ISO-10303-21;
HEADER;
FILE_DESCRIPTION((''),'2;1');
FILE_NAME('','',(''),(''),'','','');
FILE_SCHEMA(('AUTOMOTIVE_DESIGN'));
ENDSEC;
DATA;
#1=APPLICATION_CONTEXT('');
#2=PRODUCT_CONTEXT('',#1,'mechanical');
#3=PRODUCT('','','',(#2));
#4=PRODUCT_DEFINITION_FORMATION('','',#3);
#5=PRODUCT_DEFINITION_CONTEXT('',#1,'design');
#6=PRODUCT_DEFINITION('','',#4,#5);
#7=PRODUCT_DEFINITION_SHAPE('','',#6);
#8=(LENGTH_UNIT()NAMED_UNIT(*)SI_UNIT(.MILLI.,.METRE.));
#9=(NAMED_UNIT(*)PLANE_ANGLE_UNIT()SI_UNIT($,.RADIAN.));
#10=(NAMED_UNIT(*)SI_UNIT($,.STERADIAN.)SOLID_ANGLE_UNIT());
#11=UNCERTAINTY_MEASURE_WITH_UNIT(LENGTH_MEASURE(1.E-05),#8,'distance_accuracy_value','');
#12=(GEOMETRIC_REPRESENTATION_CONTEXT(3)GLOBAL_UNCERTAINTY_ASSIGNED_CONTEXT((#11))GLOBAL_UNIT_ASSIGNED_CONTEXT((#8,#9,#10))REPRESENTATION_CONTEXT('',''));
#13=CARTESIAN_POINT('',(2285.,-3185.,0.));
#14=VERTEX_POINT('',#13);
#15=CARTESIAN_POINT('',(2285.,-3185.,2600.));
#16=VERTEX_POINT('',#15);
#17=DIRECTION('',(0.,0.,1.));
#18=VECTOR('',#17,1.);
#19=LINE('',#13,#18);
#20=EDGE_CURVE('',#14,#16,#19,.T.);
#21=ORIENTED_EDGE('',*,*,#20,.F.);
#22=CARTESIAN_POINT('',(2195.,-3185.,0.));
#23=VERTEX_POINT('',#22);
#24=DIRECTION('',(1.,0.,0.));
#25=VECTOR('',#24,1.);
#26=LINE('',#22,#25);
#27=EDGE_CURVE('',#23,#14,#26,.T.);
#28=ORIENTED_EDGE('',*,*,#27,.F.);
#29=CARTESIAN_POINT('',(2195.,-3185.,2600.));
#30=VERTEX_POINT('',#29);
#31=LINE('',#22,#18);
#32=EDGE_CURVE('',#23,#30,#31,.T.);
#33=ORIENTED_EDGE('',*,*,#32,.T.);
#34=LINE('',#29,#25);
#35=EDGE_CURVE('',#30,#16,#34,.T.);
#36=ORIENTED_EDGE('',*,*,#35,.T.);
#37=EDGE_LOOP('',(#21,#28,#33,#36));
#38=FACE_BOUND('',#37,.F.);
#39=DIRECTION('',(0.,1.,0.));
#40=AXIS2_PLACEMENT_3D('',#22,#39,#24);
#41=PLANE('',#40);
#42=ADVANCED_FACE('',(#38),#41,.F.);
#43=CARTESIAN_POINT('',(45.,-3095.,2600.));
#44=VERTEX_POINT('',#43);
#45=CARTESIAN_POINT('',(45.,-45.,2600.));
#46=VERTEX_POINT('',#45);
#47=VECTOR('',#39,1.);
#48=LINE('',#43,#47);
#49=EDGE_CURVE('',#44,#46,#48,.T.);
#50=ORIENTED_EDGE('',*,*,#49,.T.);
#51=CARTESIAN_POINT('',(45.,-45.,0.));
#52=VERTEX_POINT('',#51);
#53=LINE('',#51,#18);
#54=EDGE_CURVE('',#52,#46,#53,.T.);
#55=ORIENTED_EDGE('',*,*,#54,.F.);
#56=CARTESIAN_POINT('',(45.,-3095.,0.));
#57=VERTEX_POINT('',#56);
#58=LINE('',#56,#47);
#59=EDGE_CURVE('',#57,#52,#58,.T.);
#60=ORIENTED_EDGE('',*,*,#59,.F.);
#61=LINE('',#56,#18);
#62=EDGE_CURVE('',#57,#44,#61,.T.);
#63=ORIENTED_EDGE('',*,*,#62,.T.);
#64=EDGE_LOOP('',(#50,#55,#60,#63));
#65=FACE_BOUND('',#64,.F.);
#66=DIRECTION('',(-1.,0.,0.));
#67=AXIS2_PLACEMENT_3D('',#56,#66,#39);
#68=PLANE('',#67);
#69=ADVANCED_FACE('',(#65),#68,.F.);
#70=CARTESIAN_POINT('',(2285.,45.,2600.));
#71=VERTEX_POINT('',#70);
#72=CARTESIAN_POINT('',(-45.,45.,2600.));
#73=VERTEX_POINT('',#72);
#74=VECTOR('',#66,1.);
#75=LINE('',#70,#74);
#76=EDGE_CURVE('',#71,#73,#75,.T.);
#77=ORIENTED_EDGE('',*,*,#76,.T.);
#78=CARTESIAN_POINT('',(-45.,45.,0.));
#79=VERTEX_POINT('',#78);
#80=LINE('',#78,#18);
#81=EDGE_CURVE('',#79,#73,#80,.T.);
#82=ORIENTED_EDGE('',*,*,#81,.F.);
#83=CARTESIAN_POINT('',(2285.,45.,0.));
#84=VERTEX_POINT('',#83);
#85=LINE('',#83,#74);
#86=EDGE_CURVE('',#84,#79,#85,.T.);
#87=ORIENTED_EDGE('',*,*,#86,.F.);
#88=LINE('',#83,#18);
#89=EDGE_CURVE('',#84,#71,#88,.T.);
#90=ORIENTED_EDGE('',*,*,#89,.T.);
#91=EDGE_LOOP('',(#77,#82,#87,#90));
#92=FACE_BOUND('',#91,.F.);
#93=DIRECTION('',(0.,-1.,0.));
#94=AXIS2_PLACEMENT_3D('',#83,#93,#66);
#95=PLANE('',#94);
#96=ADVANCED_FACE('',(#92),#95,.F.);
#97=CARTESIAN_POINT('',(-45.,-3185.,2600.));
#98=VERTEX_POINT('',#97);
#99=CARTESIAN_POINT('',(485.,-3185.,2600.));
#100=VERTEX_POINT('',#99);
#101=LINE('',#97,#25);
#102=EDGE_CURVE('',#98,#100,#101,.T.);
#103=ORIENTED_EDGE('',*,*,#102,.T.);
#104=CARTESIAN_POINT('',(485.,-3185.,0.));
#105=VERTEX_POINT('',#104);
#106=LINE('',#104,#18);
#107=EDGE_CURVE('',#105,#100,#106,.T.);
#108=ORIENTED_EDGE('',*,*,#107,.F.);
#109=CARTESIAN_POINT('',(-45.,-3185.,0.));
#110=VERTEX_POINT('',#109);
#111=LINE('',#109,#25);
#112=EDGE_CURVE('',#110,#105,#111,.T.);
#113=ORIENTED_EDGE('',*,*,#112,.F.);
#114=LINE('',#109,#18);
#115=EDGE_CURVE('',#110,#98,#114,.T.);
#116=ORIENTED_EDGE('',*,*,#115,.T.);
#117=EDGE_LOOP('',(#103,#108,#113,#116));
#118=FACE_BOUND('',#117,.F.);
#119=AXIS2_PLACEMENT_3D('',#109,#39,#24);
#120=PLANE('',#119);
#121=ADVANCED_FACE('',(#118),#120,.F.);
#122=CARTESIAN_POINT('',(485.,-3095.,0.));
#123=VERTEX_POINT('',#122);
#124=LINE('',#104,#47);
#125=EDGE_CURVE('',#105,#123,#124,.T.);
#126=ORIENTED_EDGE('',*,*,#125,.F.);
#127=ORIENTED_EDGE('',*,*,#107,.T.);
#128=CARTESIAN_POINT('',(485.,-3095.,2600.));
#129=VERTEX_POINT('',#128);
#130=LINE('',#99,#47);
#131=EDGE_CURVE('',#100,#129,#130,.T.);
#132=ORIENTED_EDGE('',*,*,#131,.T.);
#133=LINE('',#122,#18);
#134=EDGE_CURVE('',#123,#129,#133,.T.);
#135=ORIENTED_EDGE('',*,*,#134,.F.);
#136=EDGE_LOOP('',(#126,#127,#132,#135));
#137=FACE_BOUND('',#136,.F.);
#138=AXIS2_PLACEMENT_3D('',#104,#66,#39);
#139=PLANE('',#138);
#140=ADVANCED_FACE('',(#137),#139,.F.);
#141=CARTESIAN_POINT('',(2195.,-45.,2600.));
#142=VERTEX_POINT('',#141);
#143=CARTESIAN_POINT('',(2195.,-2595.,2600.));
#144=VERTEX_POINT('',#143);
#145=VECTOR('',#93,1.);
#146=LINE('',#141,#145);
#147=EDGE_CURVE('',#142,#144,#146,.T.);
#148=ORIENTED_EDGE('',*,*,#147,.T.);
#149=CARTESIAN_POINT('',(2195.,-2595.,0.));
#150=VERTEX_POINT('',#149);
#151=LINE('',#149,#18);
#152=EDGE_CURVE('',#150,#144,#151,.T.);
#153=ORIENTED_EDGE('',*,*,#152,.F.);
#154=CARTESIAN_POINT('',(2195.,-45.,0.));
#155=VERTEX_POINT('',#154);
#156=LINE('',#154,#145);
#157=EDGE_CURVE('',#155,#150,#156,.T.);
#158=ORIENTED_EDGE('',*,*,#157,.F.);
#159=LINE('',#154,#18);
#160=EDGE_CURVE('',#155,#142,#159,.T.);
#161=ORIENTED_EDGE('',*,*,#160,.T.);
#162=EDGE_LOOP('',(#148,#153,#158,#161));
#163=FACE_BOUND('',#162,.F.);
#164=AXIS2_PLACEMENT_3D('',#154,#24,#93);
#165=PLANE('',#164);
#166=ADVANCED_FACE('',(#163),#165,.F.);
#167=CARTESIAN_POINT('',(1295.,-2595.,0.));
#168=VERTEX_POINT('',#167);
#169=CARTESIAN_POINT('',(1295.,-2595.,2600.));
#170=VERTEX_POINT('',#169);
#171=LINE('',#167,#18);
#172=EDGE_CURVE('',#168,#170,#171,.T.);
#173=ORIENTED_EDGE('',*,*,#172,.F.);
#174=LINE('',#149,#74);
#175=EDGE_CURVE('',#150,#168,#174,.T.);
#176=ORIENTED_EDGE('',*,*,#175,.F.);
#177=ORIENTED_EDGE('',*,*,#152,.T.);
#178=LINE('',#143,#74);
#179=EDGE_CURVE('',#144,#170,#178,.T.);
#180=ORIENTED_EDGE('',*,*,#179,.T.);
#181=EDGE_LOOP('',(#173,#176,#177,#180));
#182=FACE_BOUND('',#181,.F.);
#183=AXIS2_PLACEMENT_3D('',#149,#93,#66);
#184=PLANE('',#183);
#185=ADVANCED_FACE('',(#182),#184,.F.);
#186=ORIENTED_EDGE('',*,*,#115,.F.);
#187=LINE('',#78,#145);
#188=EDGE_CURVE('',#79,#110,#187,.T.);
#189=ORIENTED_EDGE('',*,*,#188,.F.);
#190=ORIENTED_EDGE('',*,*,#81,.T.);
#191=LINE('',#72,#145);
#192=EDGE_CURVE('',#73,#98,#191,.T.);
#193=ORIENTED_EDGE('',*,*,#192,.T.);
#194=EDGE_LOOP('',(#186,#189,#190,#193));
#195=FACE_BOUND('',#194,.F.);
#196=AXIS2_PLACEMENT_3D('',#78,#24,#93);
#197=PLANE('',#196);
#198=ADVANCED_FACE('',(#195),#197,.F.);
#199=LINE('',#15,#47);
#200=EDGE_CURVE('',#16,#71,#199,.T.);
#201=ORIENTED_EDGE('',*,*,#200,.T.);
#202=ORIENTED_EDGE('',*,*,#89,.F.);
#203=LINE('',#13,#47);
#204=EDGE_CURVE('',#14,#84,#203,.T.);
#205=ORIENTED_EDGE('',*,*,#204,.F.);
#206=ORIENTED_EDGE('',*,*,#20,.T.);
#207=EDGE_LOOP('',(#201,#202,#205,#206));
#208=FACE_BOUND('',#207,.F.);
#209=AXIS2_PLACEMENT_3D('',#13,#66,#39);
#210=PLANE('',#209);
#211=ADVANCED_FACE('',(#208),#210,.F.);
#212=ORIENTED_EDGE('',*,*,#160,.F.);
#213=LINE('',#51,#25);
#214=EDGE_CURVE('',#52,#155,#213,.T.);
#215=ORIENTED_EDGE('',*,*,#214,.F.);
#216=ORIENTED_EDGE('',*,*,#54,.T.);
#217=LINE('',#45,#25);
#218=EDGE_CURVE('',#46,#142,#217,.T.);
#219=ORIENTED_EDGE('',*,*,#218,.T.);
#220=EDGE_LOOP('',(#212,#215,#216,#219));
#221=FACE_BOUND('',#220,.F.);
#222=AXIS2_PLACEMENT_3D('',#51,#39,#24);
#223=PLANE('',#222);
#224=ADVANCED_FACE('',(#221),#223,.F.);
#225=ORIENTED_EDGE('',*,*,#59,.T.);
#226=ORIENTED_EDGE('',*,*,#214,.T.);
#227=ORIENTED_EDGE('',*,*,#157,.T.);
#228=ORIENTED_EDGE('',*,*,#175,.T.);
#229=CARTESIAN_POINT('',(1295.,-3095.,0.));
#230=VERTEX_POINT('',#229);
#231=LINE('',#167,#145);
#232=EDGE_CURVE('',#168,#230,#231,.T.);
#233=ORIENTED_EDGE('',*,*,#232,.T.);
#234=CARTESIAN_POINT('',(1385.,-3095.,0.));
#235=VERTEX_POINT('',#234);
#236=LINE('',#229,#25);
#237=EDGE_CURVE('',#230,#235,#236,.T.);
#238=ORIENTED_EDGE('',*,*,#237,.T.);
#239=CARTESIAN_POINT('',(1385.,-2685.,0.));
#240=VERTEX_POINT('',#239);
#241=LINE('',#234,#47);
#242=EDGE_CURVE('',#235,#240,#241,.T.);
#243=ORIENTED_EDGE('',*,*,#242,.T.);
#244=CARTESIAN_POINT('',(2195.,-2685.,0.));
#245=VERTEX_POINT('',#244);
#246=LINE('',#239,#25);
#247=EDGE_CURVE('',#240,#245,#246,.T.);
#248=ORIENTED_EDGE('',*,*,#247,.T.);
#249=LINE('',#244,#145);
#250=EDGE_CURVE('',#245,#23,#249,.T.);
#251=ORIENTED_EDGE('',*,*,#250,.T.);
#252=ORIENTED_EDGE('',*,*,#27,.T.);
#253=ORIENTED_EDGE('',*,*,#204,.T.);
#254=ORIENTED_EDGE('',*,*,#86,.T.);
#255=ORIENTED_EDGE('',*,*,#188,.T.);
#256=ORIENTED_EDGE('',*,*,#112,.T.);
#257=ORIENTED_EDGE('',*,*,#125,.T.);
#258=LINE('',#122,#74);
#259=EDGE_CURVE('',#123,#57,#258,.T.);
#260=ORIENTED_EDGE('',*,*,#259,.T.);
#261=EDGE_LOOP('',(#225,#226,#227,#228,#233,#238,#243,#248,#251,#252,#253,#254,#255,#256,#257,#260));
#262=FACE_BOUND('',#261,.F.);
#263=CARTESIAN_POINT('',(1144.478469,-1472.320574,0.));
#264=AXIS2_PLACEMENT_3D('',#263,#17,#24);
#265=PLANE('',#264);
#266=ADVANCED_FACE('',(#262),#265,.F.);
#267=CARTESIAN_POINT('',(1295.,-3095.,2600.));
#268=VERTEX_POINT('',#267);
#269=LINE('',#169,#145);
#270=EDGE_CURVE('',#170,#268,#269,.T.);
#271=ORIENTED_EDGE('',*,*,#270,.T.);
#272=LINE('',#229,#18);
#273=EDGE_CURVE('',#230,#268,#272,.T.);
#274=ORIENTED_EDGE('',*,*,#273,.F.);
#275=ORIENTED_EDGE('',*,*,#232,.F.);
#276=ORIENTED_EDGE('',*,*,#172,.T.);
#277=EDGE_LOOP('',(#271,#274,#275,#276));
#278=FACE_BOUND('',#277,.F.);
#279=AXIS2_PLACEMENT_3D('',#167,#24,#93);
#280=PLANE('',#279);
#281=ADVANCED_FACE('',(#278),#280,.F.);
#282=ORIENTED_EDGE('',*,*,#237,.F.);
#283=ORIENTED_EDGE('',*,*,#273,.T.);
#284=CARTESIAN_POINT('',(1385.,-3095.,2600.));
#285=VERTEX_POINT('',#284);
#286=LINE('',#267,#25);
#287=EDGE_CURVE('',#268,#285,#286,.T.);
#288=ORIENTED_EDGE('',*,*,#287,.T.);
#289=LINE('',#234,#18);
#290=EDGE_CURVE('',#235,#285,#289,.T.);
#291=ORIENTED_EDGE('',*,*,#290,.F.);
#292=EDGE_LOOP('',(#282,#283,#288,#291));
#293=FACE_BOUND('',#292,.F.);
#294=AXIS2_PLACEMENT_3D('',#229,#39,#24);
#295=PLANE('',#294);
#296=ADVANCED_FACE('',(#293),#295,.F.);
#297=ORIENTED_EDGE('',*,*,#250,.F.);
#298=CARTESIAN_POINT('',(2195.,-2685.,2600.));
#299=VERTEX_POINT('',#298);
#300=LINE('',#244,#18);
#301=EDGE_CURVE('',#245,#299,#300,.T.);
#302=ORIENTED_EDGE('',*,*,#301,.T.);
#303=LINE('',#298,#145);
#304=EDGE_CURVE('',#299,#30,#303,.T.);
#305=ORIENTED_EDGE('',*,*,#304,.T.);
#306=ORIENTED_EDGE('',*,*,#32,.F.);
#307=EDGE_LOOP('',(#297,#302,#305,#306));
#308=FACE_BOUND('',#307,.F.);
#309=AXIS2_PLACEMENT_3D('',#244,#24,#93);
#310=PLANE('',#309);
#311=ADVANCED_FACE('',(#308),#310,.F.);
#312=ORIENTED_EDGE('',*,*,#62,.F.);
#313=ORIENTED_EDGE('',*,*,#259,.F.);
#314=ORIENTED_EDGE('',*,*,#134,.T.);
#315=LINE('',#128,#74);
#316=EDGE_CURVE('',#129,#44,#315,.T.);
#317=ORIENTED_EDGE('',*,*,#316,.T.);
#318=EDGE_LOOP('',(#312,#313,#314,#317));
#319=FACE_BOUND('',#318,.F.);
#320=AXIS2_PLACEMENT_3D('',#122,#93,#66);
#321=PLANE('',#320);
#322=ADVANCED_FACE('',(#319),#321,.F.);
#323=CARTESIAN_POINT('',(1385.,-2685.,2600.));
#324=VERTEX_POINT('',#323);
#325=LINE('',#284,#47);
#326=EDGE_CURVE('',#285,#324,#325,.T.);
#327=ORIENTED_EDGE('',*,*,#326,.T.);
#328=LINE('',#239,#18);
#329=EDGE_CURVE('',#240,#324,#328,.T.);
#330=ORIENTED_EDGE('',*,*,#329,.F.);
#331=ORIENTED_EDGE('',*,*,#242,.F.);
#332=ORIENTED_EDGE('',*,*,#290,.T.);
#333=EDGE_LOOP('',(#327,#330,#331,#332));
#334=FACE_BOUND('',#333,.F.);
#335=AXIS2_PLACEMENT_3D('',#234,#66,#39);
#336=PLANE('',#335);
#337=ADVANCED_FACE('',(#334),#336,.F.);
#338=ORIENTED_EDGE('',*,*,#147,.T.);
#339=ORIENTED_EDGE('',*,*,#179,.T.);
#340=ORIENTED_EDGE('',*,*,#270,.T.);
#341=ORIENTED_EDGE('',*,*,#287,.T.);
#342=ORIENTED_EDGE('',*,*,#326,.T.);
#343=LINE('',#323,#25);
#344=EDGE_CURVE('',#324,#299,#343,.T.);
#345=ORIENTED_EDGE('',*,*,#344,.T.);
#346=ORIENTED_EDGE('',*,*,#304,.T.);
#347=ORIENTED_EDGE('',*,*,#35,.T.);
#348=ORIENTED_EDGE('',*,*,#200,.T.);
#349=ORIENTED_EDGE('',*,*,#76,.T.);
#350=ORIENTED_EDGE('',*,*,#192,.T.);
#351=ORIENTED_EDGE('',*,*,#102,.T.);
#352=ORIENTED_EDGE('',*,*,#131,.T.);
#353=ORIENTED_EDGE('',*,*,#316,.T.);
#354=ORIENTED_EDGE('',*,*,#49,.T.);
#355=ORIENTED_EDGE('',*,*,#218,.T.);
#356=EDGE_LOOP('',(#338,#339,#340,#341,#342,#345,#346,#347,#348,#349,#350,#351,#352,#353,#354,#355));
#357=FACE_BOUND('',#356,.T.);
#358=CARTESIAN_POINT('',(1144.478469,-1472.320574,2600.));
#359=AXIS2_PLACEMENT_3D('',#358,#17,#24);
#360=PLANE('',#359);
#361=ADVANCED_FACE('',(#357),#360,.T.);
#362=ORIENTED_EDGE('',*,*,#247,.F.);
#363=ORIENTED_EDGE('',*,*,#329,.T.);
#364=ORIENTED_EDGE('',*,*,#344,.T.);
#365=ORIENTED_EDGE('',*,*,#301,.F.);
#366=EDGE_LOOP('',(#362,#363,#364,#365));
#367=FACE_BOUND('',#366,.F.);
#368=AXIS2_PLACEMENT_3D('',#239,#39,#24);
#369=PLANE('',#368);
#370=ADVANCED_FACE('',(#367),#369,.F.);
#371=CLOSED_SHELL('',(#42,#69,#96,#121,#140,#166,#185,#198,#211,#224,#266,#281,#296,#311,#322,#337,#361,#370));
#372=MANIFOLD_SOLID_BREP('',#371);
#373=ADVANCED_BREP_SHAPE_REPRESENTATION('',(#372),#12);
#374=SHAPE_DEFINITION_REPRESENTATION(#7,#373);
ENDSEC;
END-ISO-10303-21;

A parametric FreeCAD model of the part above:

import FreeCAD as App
import Part
import Sketcher

doc = App.newDocument("Part")
body = doc.addObject("PartDesign::Body", "Body")

# Sketch on XY plane
sketch1 = body.newObject("Sketcher::SketchObject", "Sketch")
sketch1.AttachmentSupport = (doc.getObject("XY_Plane"), [""])
sketch1.MapMode = "FlatFace"
sketch1.addGeometry([
    Part.LineSegment(App.Vector(45, -45, 0), App.Vector(2195, -45, 0)),  # 0
    Part.LineSegment(App.Vector(2195, -45, 0), App.Vector(2195, -2595, 0)),  # 1
    Part.LineSegment(App.Vector(2195, -2595, 0), App.Vector(1295, -2595, 0)),  # 2
    Part.LineSegment(App.Vector(1295, -2595, 0), App.Vector(1295, -3095, 0)),  # 3
    Part.LineSegment(App.Vector(1295, -3095, 0), App.Vector(1385, -3095, 0)),  # 4
    Part.LineSegment(App.Vector(1385, -3095, 0), App.Vector(1385, -2685, 0)),  # 5
    Part.LineSegment(App.Vector(1385, -2685, 0), App.Vector(2195, -2685, 0)),  # 6
    Part.LineSegment(App.Vector(2195, -2685, 0), App.Vector(2195, -3185, 0)),  # 7
    Part.LineSegment(App.Vector(2195, -3185, 0), App.Vector(2285, -3185, 0)),  # 8
    Part.LineSegment(App.Vector(2285, -3185, 0), App.Vector(2285, 45, 0)),  # 9
    Part.LineSegment(App.Vector(2285, 45, 0), App.Vector(-45, 45, 0)),  # 10
    Part.LineSegment(App.Vector(-45, 45, 0), App.Vector(-45, -3185, 0)),  # 11
    Part.LineSegment(App.Vector(-45, -3185, 0), App.Vector(485, -3185, 0)),  # 12
    Part.LineSegment(App.Vector(485, -3185, 0), App.Vector(485, -3095, 0)),  # 13
    Part.LineSegment(App.Vector(485, -3095, 0), App.Vector(45, -3095, 0)),  # 14
    Part.LineSegment(App.Vector(45, -3095, 0), App.Vector(45, -45, 0)),  # 15
], False)
sketch1.addConstraint([
    Sketcher.Constraint("Coincident", 0, 2, 1, 1),
    Sketcher.Constraint("Coincident", 1, 2, 2, 1),
    Sketcher.Constraint("Coincident", 2, 2, 3, 1),
    Sketcher.Constraint("Coincident", 3, 2, 4, 1),
    Sketcher.Constraint("Coincident", 4, 2, 5, 1),
    Sketcher.Constraint("Coincident", 5, 2, 6, 1),
    Sketcher.Constraint("Coincident", 6, 2, 7, 1),
    Sketcher.Constraint("Coincident", 7, 2, 8, 1),
    Sketcher.Constraint("Coincident", 8, 2, 9, 1),
    Sketcher.Constraint("Coincident", 9, 2, 10, 1),
    Sketcher.Constraint("Coincident", 10, 2, 11, 1),
    Sketcher.Constraint("Coincident", 11, 2, 12, 1),
    Sketcher.Constraint("Coincident", 12, 2, 13, 1),
    Sketcher.Constraint("Coincident", 13, 2, 14, 1),
    Sketcher.Constraint("Coincident", 14, 2, 15, 1),
    Sketcher.Constraint("Coincident", 15, 2, 0, 1),
    Sketcher.Constraint("Horizontal", 0),
    Sketcher.Constraint("Vertical", 1),
    Sketcher.Constraint("Horizontal", 2),
    Sketcher.Constraint("Vertical", 3),
    Sketcher.Constraint("Horizontal", 4),
    Sketcher.Constraint("Vertical", 5),
    Sketcher.Constraint("Horizontal", 6),
    Sketcher.Constraint("Vertical", 7),
    Sketcher.Constraint("Horizontal", 8),
    Sketcher.Constraint("Vertical", 9),
    Sketcher.Constraint("Horizontal", 10),
    Sketcher.Constraint("Vertical", 11),
    Sketcher.Constraint("Horizontal", 12),
    Sketcher.Constraint("Vertical", 13),
    Sketcher.Constraint("Horizontal", 14),
    Sketcher.Constraint("Vertical", 15),
    Sketcher.Constraint("Symmetric", 10, 2, 15, 2, -1, 1),
    Sketcher.Constraint("Horizontal", 8, 2, 11, 2),
    Sketcher.Constraint("Horizontal", 4, 2, 13, 2),
    Sketcher.Constraint("Vertical", 1, 2, 6, 2),
    Sketcher.Constraint("Equal", 4, 8),
    Sketcher.Constraint("Equal", 3, 7),
    Sketcher.Constraint("Equal", 8, 13),
    Sketcher.Constraint("DistanceX", 0, 1, 0, 2, 2150.0),
    Sketcher.Constraint("DistanceX", 2, 2, 2, 1, 900.0),
    Sketcher.Constraint("DistanceX", 4, 1, 4, 2, 90.0),
    Sketcher.Constraint("DistanceX", 10, 2, 10, 1, 2330.0),
    Sketcher.Constraint("DistanceX", 12, 1, 12, 2, 530.0),
    Sketcher.Constraint("DistanceY", 1, 2, 1, 1, 2550.0),
    Sketcher.Constraint("DistanceY", 3, 2, 3, 1, 500.0),
    Sketcher.Constraint("DistanceY", 9, 1, 9, 2, 3230.0),
])
pad1 = body.newObject("PartDesign::Pad", "Pad")
pad1.Profile = sketch1
pad1.Length = 2600

doc.recompute()
